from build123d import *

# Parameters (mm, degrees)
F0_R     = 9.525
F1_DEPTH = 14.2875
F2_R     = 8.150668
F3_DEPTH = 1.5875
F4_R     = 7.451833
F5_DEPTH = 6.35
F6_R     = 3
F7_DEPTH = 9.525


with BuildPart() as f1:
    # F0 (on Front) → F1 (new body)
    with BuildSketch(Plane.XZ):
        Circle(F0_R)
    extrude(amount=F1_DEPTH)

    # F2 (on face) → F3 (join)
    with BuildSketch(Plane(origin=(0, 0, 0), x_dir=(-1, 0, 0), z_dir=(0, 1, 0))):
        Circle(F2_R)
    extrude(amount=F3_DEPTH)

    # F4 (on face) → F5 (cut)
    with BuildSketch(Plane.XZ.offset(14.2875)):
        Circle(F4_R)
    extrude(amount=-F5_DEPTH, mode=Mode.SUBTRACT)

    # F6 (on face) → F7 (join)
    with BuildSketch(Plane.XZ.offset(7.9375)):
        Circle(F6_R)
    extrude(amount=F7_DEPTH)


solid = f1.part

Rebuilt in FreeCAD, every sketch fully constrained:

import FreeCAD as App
import Part
import Sketcher
from FreeCAD import Vector
Q = App.Units.Quantity

doc = App.newDocument("Part")
params = doc.addObject("Spreadsheet::Sheet", "Params")
for row, (alias, value) in enumerate([
    ("sketch1_diameter", "0.75 in"),
    ("pad1_length", "0.5625 in"),
    ("pad2_length", "0.0625 in"),
    ("pocket1_length", "0.25 in"),
    ("pad3_length", "0.375 in"),
], start=1):
    params.set(f"A{row}", alias)
    params.set(f"B{row}", "=" + value)
    params.setAlias(f"B{row}", alias)

body = doc.addObject("PartDesign::Body", "Body")

# Sketch on XZ plane
sketch1 = body.newObject("Sketcher::SketchObject", "Sketch")
sketch1.AttachmentSupport = (doc.getObject("XZ_Plane"), [""])
sketch1.MapMode = "FlatFace"
sketch1.addGeometry(Part.Circle(Vector(0, 0, 0), Vector(0, 0, 1), 10), False)
sketch1.addConstraint(Sketcher.Constraint("Coincident", 0, 3, -1, 1))
sketch1.addConstraint(Sketcher.Constraint("Diameter", 0, Q("0.75 in")))
sketch1.setExpression("Constraints[1]", "Params.sketch1_diameter")
pad1 = body.newObject("PartDesign::Pad", "Pad")
pad1.Profile = sketch1
pad1.setExpression("Length", "Params.pad1_length")

# Sketch on XZ plane
sketch2 = body.newObject("Sketcher::SketchObject", "Sketch001")
sketch2.AttachmentSupport = (doc.getObject("XZ_Plane"), [""])
sketch2.MapMode = "FlatFace"
sketch2.addGeometry(Part.Circle(Vector(0, 0, 0), Vector(0, 0, 1), 8), False)
sketch2.addConstraint(Sketcher.Constraint("Coincident", 0, 3, -1, 1))
sketch2.addConstraint(Sketcher.Constraint("Diameter", 0, 16.301336))
pad2 = body.newObject("PartDesign::Pad", "Pad001")
pad2.Profile = sketch2
pad2.setExpression("Length", "Params.pad2_length")
pad2.Reversed = True

# Sketch on XZ plane
sketch3 = body.newObject("Sketcher::SketchObject", "Sketch002")
sketch3.AttachmentSupport = (doc.getObject("XZ_Plane"), [""])
sketch3.MapMode = "FlatFace"
sketch3.AttachmentOffset = App.Placement(Vector(0, 0, 0.5625 * 25.4), App.Rotation())
sketch3.addGeometry(Part.Circle(Vector(0, 0, 0), Vector(0, 0, 1), 7), False)
sketch3.addConstraint(Sketcher.Constraint("Coincident", 0, 3, -1, 1))
sketch3.addConstraint(Sketcher.Constraint("Diameter", 0, 14.903666))
pocket1 = body.newObject("PartDesign::Pocket", "Pocket")
pocket1.Profile = sketch3
pocket1.setExpression("Length", "Params.pocket1_length")

# Sketch on XZ plane
sketch4 = body.newObject("Sketcher::SketchObject", "Sketch003")
sketch4.AttachmentSupport = (doc.getObject("XZ_Plane"), [""])
sketch4.MapMode = "FlatFace"
sketch4.AttachmentOffset = App.Placement(Vector(0, 0, 0.3125 * 25.4), App.Rotation())
sketch4.addGeometry(Part.Circle(Vector(0, 0, 0), Vector(0, 0, 1), 3), False)
sketch4.addConstraint(Sketcher.Constraint("Coincident", 0, 3, -1, 1))
sketch4.addConstraint(Sketcher.Constraint("Diameter", 0, 6.0))
pad3 = body.newObject("PartDesign::Pad", "Pad002")
pad3.Profile = sketch4
pad3.setExpression("Length", "Params.pad3_length")

doc.recompute()
